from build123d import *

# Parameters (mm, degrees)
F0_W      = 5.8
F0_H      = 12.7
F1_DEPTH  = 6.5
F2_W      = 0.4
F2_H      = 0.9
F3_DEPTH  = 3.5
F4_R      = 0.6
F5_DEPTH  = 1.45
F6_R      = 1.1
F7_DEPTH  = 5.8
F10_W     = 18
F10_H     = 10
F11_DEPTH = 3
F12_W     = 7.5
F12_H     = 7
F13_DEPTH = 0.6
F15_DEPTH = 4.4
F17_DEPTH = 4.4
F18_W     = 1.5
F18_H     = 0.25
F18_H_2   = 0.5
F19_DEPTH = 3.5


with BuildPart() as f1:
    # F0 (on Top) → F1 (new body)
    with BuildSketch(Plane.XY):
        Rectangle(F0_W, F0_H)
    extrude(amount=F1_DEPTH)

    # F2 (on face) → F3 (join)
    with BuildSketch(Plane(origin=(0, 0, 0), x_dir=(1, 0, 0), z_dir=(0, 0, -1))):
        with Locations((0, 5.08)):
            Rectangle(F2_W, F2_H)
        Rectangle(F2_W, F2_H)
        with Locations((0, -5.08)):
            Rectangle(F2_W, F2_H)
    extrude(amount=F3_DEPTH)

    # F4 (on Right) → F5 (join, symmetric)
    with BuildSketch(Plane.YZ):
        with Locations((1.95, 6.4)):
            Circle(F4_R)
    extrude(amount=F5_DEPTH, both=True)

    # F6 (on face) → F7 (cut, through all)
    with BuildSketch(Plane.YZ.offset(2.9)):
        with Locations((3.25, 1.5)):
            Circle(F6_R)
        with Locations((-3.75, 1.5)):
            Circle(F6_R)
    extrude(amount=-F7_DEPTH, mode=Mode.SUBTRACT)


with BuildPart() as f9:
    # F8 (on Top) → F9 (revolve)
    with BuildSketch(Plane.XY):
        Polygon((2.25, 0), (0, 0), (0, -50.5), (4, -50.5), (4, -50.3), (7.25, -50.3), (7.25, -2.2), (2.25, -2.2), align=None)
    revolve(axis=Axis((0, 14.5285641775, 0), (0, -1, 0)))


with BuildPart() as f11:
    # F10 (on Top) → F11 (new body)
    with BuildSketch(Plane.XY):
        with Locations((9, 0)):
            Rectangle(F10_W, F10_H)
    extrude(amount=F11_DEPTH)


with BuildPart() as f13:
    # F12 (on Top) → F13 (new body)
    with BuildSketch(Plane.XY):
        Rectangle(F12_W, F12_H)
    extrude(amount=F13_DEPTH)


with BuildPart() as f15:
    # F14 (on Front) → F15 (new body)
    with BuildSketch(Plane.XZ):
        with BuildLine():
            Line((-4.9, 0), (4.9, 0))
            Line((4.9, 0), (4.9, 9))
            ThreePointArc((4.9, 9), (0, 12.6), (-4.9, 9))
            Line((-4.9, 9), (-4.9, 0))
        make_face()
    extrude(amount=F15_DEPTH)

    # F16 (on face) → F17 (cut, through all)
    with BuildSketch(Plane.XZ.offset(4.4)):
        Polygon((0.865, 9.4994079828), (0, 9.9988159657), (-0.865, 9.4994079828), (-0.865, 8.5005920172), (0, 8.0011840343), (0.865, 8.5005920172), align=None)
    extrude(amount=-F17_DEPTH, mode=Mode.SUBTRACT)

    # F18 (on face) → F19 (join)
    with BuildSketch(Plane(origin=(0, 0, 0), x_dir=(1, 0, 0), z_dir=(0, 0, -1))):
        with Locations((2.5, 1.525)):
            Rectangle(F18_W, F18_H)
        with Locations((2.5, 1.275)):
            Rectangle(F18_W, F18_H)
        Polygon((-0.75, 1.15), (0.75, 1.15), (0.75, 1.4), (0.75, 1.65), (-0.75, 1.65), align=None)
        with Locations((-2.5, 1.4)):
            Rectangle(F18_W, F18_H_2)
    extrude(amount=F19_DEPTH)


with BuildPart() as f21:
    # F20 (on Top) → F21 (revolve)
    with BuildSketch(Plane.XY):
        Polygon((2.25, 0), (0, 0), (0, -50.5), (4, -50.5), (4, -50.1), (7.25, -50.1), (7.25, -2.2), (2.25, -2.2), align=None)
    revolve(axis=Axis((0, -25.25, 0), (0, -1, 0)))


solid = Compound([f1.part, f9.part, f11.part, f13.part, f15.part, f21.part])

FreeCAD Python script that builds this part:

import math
import FreeCAD as App
import Part
import Sketcher
Q = App.Units.Quantity

doc = App.newDocument("Part")
body = doc.addObject("PartDesign::Body", "Body")

sketch1 = doc.addObject("Sketcher::SketchObject", "Sketch")
body.addObject(sketch1)
sketch1.AttachmentSupport = (doc.XY_Plane, [""])
sketch1.MapMode = "FlatFace"
sketch1.addGeometry([
    Part.LineSegment(App.Vector(-2.9, 6.35, 0), App.Vector(-2.9, -6.35, 0)),
    Part.LineSegment(App.Vector(-2.9, -6.35, 0), App.Vector(2.9, -6.35, 0)),
    Part.LineSegment(App.Vector(2.9, -6.35, 0), App.Vector(2.9, 6.35, 0)),
    Part.LineSegment(App.Vector(2.9, 6.35, 0), App.Vector(-2.9, 6.35, 0)),
], False)
sketch1.addConstraint([
    Sketcher.Constraint("Coincident", 0, 2, 1, 1),
    Sketcher.Constraint("Coincident", 1, 2, 2, 1),
    Sketcher.Constraint("Coincident", 2, 2, 3, 1),
    Sketcher.Constraint("Coincident", 3, 2, 0, 1),
    Sketcher.Constraint("Vertical", 0),
    Sketcher.Constraint("Horizontal", 1),
    Sketcher.Constraint("Vertical", 2),
    Sketcher.Constraint("Horizontal", 3),
    Sketcher.Constraint("Symmetric", 0, 2, 2, 2, -1, 1),
    Sketcher.Constraint("DistanceX", 1, 1, 1, 2, Q("5.8 mm")),
    Sketcher.Constraint("DistanceY", 0, 2, 0, 1, Q("12.7 mm")),
])
pad1 = doc.addObject("PartDesign::Pad", "Pad")
body.addObject(pad1)
pad1.Profile = sketch1
pad1.Length = 6.5

sketch2 = doc.addObject("Sketcher::SketchObject", "Sketch001")
body.addObject(sketch2)
sketch2.AttachmentSupport = (doc.XY_Plane, [""])
sketch2.MapMode = "FlatFace"
sketch2.addGeometry([
    Part.LineSegment(App.Vector(-0.2, -5.53, 0), App.Vector(-0.2, -4.63, 0)),
    Part.LineSegment(App.Vector(-0.2, -4.63, 0), App.Vector(0.2, -4.63, 0)),
    Part.LineSegment(App.Vector(0.2, -4.63, 0), App.Vector(0.2, -5.53, 0)),
    Part.LineSegment(App.Vector(0.2, -5.53, 0), App.Vector(-0.2, -5.53, 0)),
    Part.LineSegment(App.Vector(-0.2, -0.45, 0), App.Vector(-0.2, 0.45, 0)),
    Part.LineSegment(App.Vector(-0.2, 0.45, 0), App.Vector(0.2, 0.45, 0)),
    Part.LineSegment(App.Vector(0.2, 0.45, 0), App.Vector(0.2, -0.45, 0)),
    Part.LineSegment(App.Vector(0.2, -0.45, 0), App.Vector(-0.2, -0.45, 0)),
    Part.LineSegment(App.Vector(-0.2, 4.63, 0), App.Vector(-0.2, 5.53, 0)),
    Part.LineSegment(App.Vector(-0.2, 5.53, 0), App.Vector(0.2, 5.53, 0)),
    Part.LineSegment(App.Vector(0.2, 5.53, 0), App.Vector(0.2, 4.63, 0)),
    Part.LineSegment(App.Vector(0.2, 4.63, 0), App.Vector(-0.2, 4.63, 0)),
], False)
sketch2.addConstraint([
    Sketcher.Constraint("Coincident", 0, 2, 1, 1),
    Sketcher.Constraint("Coincident", 1, 2, 2, 1),
    Sketcher.Constraint("Coincident", 2, 2, 3, 1),
    Sketcher.Constraint("Coincident", 3, 2, 0, 1),
    Sketcher.Constraint("Coincident", 4, 2, 5, 1),
    Sketcher.Constraint("Coincident", 5, 2, 6, 1),
    Sketcher.Constraint("Coincident", 6, 2, 7, 1),
    Sketcher.Constraint("Coincident", 7, 2, 4, 1),
    Sketcher.Constraint("Coincident", 8, 2, 9, 1),
    Sketcher.Constraint("Coincident", 9, 2, 10, 1),
    Sketcher.Constraint("Coincident", 10, 2, 11, 1),
    Sketcher.Constraint("Coincident", 11, 2, 8, 1),
    Sketcher.Constraint("Vertical", 0),
    Sketcher.Constraint("Horizontal", 1),
    Sketcher.Constraint("Vertical", 2),
    Sketcher.Constraint("Horizontal", 3),
    Sketcher.Constraint("Vertical", 4),
    Sketcher.Constraint("Horizontal", 5),
    Sketcher.Constraint("Vertical", 6),
    Sketcher.Constraint("Horizontal", 7),
    Sketcher.Constraint("Vertical", 8),
    Sketcher.Constraint("Horizontal", 9),
    Sketcher.Constraint("Vertical", 10),
    Sketcher.Constraint("Horizontal", 11),
    Sketcher.Constraint("Symmetric", 4, 2, 6, 2, -1, 1),
    Sketcher.Constraint("Symmetric", 2, 2, 8, 2, -1, 1),
    Sketcher.Constraint("Symmetric", 0, 2, 10, 2, -1, 1),
    Sketcher.Constraint("Vertical", 3, 2, 4, 2),
    Sketcher.Constraint("Vertical", 2, 2, 5, 2),
    Sketcher.Constraint("Equal", 2, 4),
    Sketcher.Constraint("DistanceX", 1, 1, 1, 2, Q("0.4 mm")),
    Sketcher.Constraint("DistanceY", 0, 1, 0, 2, Q("0.9 mm")),
    Sketcher.Constraint("DistanceY", 0, 2, -1, 1, Q("4.63 mm")),
])
pad2 = doc.addObject("PartDesign::Pad", "Pad001")
body.addObject(pad2)
pad2.Profile = sketch2
pad2.Length = 3.5
pad2.Reversed = True

sketch3 = doc.addObject("Sketcher::SketchObject", "Sketch002")
body.addObject(sketch3)
sketch3.AttachmentSupport = (doc.YZ_Plane, [""])
sketch3.MapMode = "FlatFace"
sketch3.addGeometry(Part.Circle(App.Vector(1.95, 6.4, 0), App.Vector(0, 0, 1), 0.6), False)
sketch3.addConstraint([
    Sketcher.Constraint("Diameter", 0, Q("1.2 mm")),
    Sketcher.Constraint("DistanceY", -1, 1, 0, 3, Q("6.4 mm")),
    Sketcher.Constraint("DistanceX", -1, 1, 0, 3, Q("1.95 mm")),
])
pad3 = doc.addObject("PartDesign::Pad", "Pad002")
body.addObject(pad3)
pad3.Profile = sketch3
pad3.Length = 2.9
pad3.Midplane = True

sketch4 = doc.addObject("Sketcher::SketchObject", "Sketch003")
body.addObject(sketch4)
sketch4.AttachmentSupport = (doc.YZ_Plane, [""])
sketch4.MapMode = "FlatFace"
sketch4.AttachmentOffset = App.Placement(App.Vector(0, 0, 2.9), App.Rotation())
sketch4.addGeometry([
    Part.Circle(App.Vector(3.25, 1.5, 0), App.Vector(0, 0, 1), 1.1),
    Part.Circle(App.Vector(-3.75, 1.5, 0), App.Vector(0, 0, 1), 1.1),
], False)
sketch4.addConstraint([
    Sketcher.Constraint("Equal", 0, 1),
    Sketcher.Constraint("Horizontal", 0, 3, 1, 3),
    Sketcher.Constraint("Diameter", 0, Q("2.2 mm")),
    Sketcher.Constraint("DistanceX", 1, 3, 0, 3, Q("7 mm")),
    Sketcher.Constraint("DistanceY", -1, 1, 0, 3, Q("1.5 mm")),
    Sketcher.Constraint("DistanceX", -1, 1, 0, 3, Q("3.25 mm")),
])
pocket1 = doc.addObject("PartDesign::Pocket", "Pocket")
body.addObject(pocket1)
pocket1.Profile = sketch4
pocket1.Type = "ThroughAll"
body2 = doc.addObject("PartDesign::Body", "Body001")

sketch5 = doc.addObject("Sketcher::SketchObject", "Sketch004")
body2.addObject(sketch5)
sketch5.AttachmentSupport = (doc.getObject("XY_Plane001"), [""])
sketch5.MapMode = "FlatFace"
sketch5.addGeometry([
    Part.LineSegment(App.Vector(2.25, 0, 0), App.Vector(0, 0, 0)),
    Part.LineSegment(App.Vector(0, 0, 0), App.Vector(0, -50.5, 0)),
    Part.LineSegment(App.Vector(0, -50.5, 0), App.Vector(4, -50.5, 0)),
    Part.LineSegment(App.Vector(4, -50.5, 0), App.Vector(4, -50.3, 0)),
    Part.LineSegment(App.Vector(4, -50.3, 0), App.Vector(7.25, -50.3, 0)),
    Part.LineSegment(App.Vector(7.25, -50.3, 0), App.Vector(7.25, -2.2, 0)),
    Part.LineSegment(App.Vector(7.25, -2.2, 0), App.Vector(2.25, -2.2, 0)),
    Part.LineSegment(App.Vector(2.25, -2.2, 0), App.Vector(2.25, 0, 0)),
], False)
sketch5.addConstraint([
    Sketcher.Constraint("Coincident", 0, 2, 1, 1),
    Sketcher.Constraint("Coincident", 1, 2, 2, 1),
    Sketcher.Constraint("Coincident", 2, 2, 3, 1),
    Sketcher.Constraint("Coincident", 3, 2, 4, 1),
    Sketcher.Constraint("Coincident", 4, 2, 5, 1),
    Sketcher.Constraint("Coincident", 5, 2, 6, 1),
    Sketcher.Constraint("Coincident", 6, 2, 7, 1),
    Sketcher.Constraint("Coincident", 7, 2, 0, 1),
    Sketcher.Constraint("Horizontal", 0),
    Sketcher.Constraint("Vertical", 1),
    Sketcher.Constraint("Horizontal", 2),
    Sketcher.Constraint("Vertical", 3),
    Sketcher.Constraint("Horizontal", 4),
    Sketcher.Constraint("Vertical", 5),
    Sketcher.Constraint("Horizontal", 6),
    Sketcher.Constraint("Vertical", 7),
    Sketcher.Constraint("Coincident", 0, 2, -1, 1),
    Sketcher.Constraint("DistanceX", 2, 1, 2, 2, Q("4 mm")),
    Sketcher.Constraint("DistanceX", 6, 2, 6, 1, Q("5 mm")),
    Sketcher.Constraint("DistanceY", 1, 2, 1, 1, Q("50.5 mm")),
    Sketcher.Constraint("DistanceY", 3, 1, 3, 2, Q("0.2 mm")),
    Sketcher.Constraint("DistanceY", 5, 1, 5, 2, Q("48.1 mm")),
    Sketcher.Constraint("DistanceX", 0, 2, 0, 1, Q("2.25 mm")),
])
revolution = doc.addObject("PartDesign::Revolution", "Revolution")
body2.addObject(revolution)
revolution.Profile = sketch5
revolution.ReferenceAxis = (sketch5, ["V_Axis"])
revolution.Angle = 360
body3 = doc.addObject("PartDesign::Body", "Body002")

sketch6 = doc.addObject("Sketcher::SketchObject", "Sketch005")
body3.addObject(sketch6)
sketch6.AttachmentSupport = (doc.getObject("XY_Plane002"), [""])
sketch6.MapMode = "FlatFace"
sketch6.addGeometry([
    Part.LineSegment(App.Vector(0, 5, 0), App.Vector(0, -5, 0)),
    Part.LineSegment(App.Vector(0, -5, 0), App.Vector(18, -5, 0)),
    Part.LineSegment(App.Vector(18, -5, 0), App.Vector(18, 5, 0)),
    Part.LineSegment(App.Vector(18, 5, 0), App.Vector(0, 5, 0)),
], False)
sketch6.addConstraint([
    Sketcher.Constraint("Coincident", 0, 2, 1, 1),
    Sketcher.Constraint("Coincident", 1, 2, 2, 1),
    Sketcher.Constraint("Coincident", 2, 2, 3, 1),
    Sketcher.Constraint("Coincident", 3, 2, 0, 1),
    Sketcher.Constraint("Vertical", 0),
    Sketcher.Constraint("Horizontal", 1),
    Sketcher.Constraint("Vertical", 2),
    Sketcher.Constraint("Horizontal", 3),
    Sketcher.Constraint("Symmetric", 0, 2, 3, 2, -1, 1),
    Sketcher.Constraint("DistanceX", 1, 1, 1, 2, Q("18 mm")),
    Sketcher.Constraint("DistanceY", 0, 2, 0, 1, Q("10 mm")),
])
pad4 = doc.addObject("PartDesign::Pad", "Pad003")
body3.addObject(pad4)
pad4.Profile = sketch6
pad4.Length = 3
body4 = doc.addObject("PartDesign::Body", "Body003")

sketch7 = doc.addObject("Sketcher::SketchObject", "Sketch006")
body4.addObject(sketch7)
sketch7.AttachmentSupport = (doc.getObject("XY_Plane003"), [""])
sketch7.MapMode = "FlatFace"
sketch7.addGeometry([
    Part.LineSegment(App.Vector(-3.75, 3.5, 0), App.Vector(-3.75, -3.5, 0)),
    Part.LineSegment(App.Vector(-3.75, -3.5, 0), App.Vector(3.75, -3.5, 0)),
    Part.LineSegment(App.Vector(3.75, -3.5, 0), App.Vector(3.75, 3.5, 0)),
    Part.LineSegment(App.Vector(3.75, 3.5, 0), App.Vector(-3.75, 3.5, 0)),
], False)
sketch7.addConstraint([
    Sketcher.Constraint("Coincident", 0, 2, 1, 1),
    Sketcher.Constraint("Coincident", 1, 2, 2, 1),
    Sketcher.Constraint("Coincident", 2, 2, 3, 1),
    Sketcher.Constraint("Coincident", 3, 2, 0, 1),
    Sketcher.Constraint("Vertical", 0),
    Sketcher.Constraint("Horizontal", 1),
    Sketcher.Constraint("Vertical", 2),
    Sketcher.Constraint("Horizontal", 3),
    Sketcher.Constraint("Symmetric", 0, 2, 2, 2, -1, 1),
    Sketcher.Constraint("DistanceY", 0, 2, 0, 1, Q("7 mm")),
    Sketcher.Constraint("DistanceX", 1, 1, 1, 2, Q("7.5 mm")),
])
pad5 = doc.addObject("PartDesign::Pad", "Pad004")
body4.addObject(pad5)
pad5.Profile = sketch7
pad5.Length = 0.6
body5 = doc.addObject("PartDesign::Body", "Body004")

sketch8 = doc.addObject("Sketcher::SketchObject", "Sketch007")
body5.addObject(sketch8)
sketch8.AttachmentSupport = (doc.getObject("XZ_Plane004"), [""])
sketch8.MapMode = "FlatFace"
sketch8.addGeometry([
    Part.LineSegment(App.Vector(-4.9, 0, 0), App.Vector(4.9, 0, 0)),
    Part.LineSegment(App.Vector(4.9, 0, 0), App.Vector(4.9, 9, 0)),
    Part.ArcOfCircle(Part.Circle(App.Vector(0, 7.465278, 0), App.Vector(0, 0, 1), 5.134722), math.radians(17.391006), math.radians(162.608994)),
    Part.LineSegment(App.Vector(-4.9, 9, 0), App.Vector(-4.9, 0, 0)),
], False)
sketch8.addConstraint([
    Sketcher.Constraint("Coincident", 0, 2, 1, 1),
    Sketcher.Constraint("Coincident", 1, 2, 2, 1),
    Sketcher.Constraint("Coincident", 2, 2, 3, 1),
    Sketcher.Constraint("Coincident", 3, 2, 0, 1),
    Sketcher.Constraint("Horizontal", 0),
    Sketcher.Constraint("Vertical", 1),
    Sketcher.Constraint("Vertical", 3),
    Sketcher.Constraint("Symmetric", 0, 2, 3, 2, -1, 1),
    Sketcher.Constraint("PointOnObject", 2, 3, -2),
    Sketcher.Constraint("DistanceY", 1, 1, 1, 2, Q("9 mm")),
    Sketcher.Constraint("DistanceX", 0, 1, 0, 2, Q("9.8 mm")),
    Sketcher.Constraint("Radius", 2, Q("5.134722 mm")),
])
pad6 = doc.addObject("PartDesign::Pad", "Pad005")
body5.addObject(pad6)
pad6.Profile = sketch8
pad6.Length = 4.4

sketch9 = doc.addObject("Sketcher::SketchObject", "Sketch008")
body5.addObject(sketch9)
sketch9.AttachmentSupport = (doc.getObject("XZ_Plane004"), [""])
sketch9.MapMode = "FlatFace"
sketch9.AttachmentOffset = App.Placement(App.Vector(0, 0, 4.4), App.Rotation())
sketch9.addGeometry([
    Part.LineSegment(App.Vector(0.865, 9.499408, 0), App.Vector(0, 9.998816, 0)),
    Part.LineSegment(App.Vector(0, 9.998816, 0), App.Vector(-0.865, 9.499408, 0)),
    Part.LineSegment(App.Vector(-0.865, 9.499408, 0), App.Vector(-0.865, 8.500592, 0)),
    Part.LineSegment(App.Vector(-0.865, 8.500592, 0), App.Vector(0, 8.001184, 0)),
    Part.LineSegment(App.Vector(0, 8.001184, 0), App.Vector(0.865, 8.500592, 0)),
    Part.LineSegment(App.Vector(0.865, 8.500592, 0), App.Vector(0.865, 9.499408, 0)),
], False)
sketch9.addConstraint([
    Sketcher.Constraint("Coincident", 0, 2, 1, 1),
    Sketcher.Constraint("Coincident", 1, 2, 2, 1),
    Sketcher.Constraint("Coincident", 2, 2, 3, 1),
    Sketcher.Constraint("Coincident", 3, 2, 4, 1),
    Sketcher.Constraint("Coincident", 4, 2, 5, 1),
    Sketcher.Constraint("Coincident", 5, 2, 0, 1),
    Sketcher.Constraint("Vertical", 2),
    Sketcher.Constraint("Vertical", 5),
    Sketcher.Constraint("Symmetric", 2, 2, 4, 2, -2),
    Sketcher.Constraint("PointOnObject", 0, 2, -2),
    Sketcher.Constraint("PointOnObject", 3, 2, -2),
    Sketcher.Constraint("Parallel", 0, 3),
    Sketcher.Constraint("Parallel", 1, 4),
    Sketcher.Constraint("Angle", 0, Q("150 deg")),
    Sketcher.Constraint("DistanceX", 2, 2, 4, 2, Q("1.73 mm")),
    Sketcher.Constraint("DistanceY", 2, 2, 2, 1, Q("0.998816 mm")),
    Sketcher.Constraint("DistanceY", -1, 1, 0, 2, Q("9.998816 mm")),
])
pocket2 = doc.addObject("PartDesign::Pocket", "Pocket001")
body5.addObject(pocket2)
pocket2.Profile = sketch9
pocket2.Type = "ThroughAll"

sketch10 = doc.addObject("Sketcher::SketchObject", "Sketch009")
body5.addObject(sketch10)
sketch10.AttachmentSupport = (doc.getObject("XY_Plane004"), [""])
sketch10.MapMode = "FlatFace"
sketch10.addGeometry([
    Part.LineSegment(App.Vector(1.75, -1.65, 0), App.Vector(1.75, -1.15, 0)),
    Part.LineSegment(App.Vector(1.75, -1.15, 0), App.Vector(3.25, -1.15, 0)),
    Part.LineSegment(App.Vector(3.25, -1.15, 0), App.Vector(3.25, -1.65, 0)),
    Part.LineSegment(App.Vector(3.25, -1.65, 0), App.Vector(1.75, -1.65, 0)),
    Part.LineSegment(App.Vector(-0.75, -1.15, 0), App.Vector(0.75, -1.15, 0)),
    Part.LineSegment(App.Vector(0.75, -1.15, 0), App.Vector(0.75, -1.65, 0)),
    Part.LineSegment(App.Vector(0.75, -1.65, 0), App.Vector(-0.75, -1.65, 0)),
    Part.LineSegment(App.Vector(-0.75, -1.65, 0), App.Vector(-0.75, -1.15, 0)),
    Part.LineSegment(App.Vector(-3.25, -1.65, 0), App.Vector(-3.25, -1.15, 0)),
    Part.LineSegment(App.Vector(-3.25, -1.15, 0), App.Vector(-1.75, -1.15, 0)),
    Part.LineSegment(App.Vector(-1.75, -1.15, 0), App.Vector(-1.75, -1.65, 0)),
    Part.LineSegment(App.Vector(-1.75, -1.65, 0), App.Vector(-3.25, -1.65, 0)),
], False)
sketch10.addConstraint([
    Sketcher.Constraint("Coincident", 0, 2, 1, 1),
    Sketcher.Constraint("Coincident", 1, 2, 2, 1),
    Sketcher.Constraint("Coincident", 2, 2, 3, 1),
    Sketcher.Constraint("Coincident", 3, 2, 0, 1),
    Sketcher.Constraint("Coincident", 4, 2, 5, 1),
    Sketcher.Constraint("Coincident", 5, 2, 6, 1),
    Sketcher.Constraint("Coincident", 6, 2, 7, 1),
    Sketcher.Constraint("Coincident", 7, 2, 4, 1),
    Sketcher.Constraint("Coincident", 8, 2, 9, 1),
    Sketcher.Constraint("Coincident", 9, 2, 10, 1),
    Sketcher.Constraint("Coincident", 10, 2, 11, 1),
    Sketcher.Constraint("Coincident", 11, 2, 8, 1),
    Sketcher.Constraint("Vertical", 0),
    Sketcher.Constraint("Horizontal", 1),
    Sketcher.Constraint("Vertical", 2),
    Sketcher.Constraint("Horizontal", 3),
    Sketcher.Constraint("Horizontal", 4),
    Sketcher.Constraint("Vertical", 5),
    Sketcher.Constraint("Horizontal", 6),
    Sketcher.Constraint("Vertical", 7),
    Sketcher.Constraint("Vertical", 8),
    Sketcher.Constraint("Horizontal", 9),
    Sketcher.Constraint("Vertical", 10),
    Sketcher.Constraint("Horizontal", 11),
    Sketcher.Constraint("Symmetric", 1, 2, 8, 2, -2),
    Sketcher.Constraint("Symmetric", 3, 2, 10, 2, -2),
    Sketcher.Constraint("Horizontal", 1, 2, 4, 2),
    Sketcher.Constraint("Horizontal", 3, 2, 5, 2),
    Sketcher.Constraint("Equal", 3, 4),
    Sketcher.Constraint("DistanceX", 1, 1, 1, 2, Q("1.5 mm")),
    Sketcher.Constraint("DistanceY", 0, 1, 0, 2, Q("0.5 mm")),
    Sketcher.Constraint("DistanceX", 4, 2, 0, 2, Q("1 mm")),
    Sketcher.Constraint("DistanceX", 8, 2, 4, 2, Q("4 mm")),
    Sketcher.Constraint("DistanceY", 0, 2, -1, 1, Q("1.15 mm")),
])
pad7 = doc.addObject("PartDesign::Pad", "Pad006")
body5.addObject(pad7)
pad7.Profile = sketch10
pad7.Length = 3.5
pad7.Reversed = True
body6 = doc.addObject("PartDesign::Body", "Body005")

sketch11 = doc.addObject("Sketcher::SketchObject", "Sketch010")
body6.addObject(sketch11)
sketch11.AttachmentSupport = (doc.getObject("XY_Plane005"), [""])
sketch11.MapMode = "FlatFace"
sketch11.addGeometry([
    Part.LineSegment(App.Vector(2.25, 0, 0), App.Vector(0, 0, 0)),
    Part.LineSegment(App.Vector(0, 0, 0), App.Vector(0, -50.5, 0)),
    Part.LineSegment(App.Vector(0, -50.5, 0), App.Vector(4, -50.5, 0)),
    Part.LineSegment(App.Vector(4, -50.5, 0), App.Vector(4, -50.1, 0)),
    Part.LineSegment(App.Vector(4, -50.1, 0), App.Vector(7.25, -50.1, 0)),
    Part.LineSegment(App.Vector(7.25, -50.1, 0), App.Vector(7.25, -2.2, 0)),
    Part.LineSegment(App.Vector(7.25, -2.2, 0), App.Vector(2.25, -2.2, 0)),
    Part.LineSegment(App.Vector(2.25, -2.2, 0), App.Vector(2.25, 0, 0)),
], False)
sketch11.addConstraint([
    Sketcher.Constraint("Coincident", 0, 2, 1, 1),
    Sketcher.Constraint("Coincident", 1, 2, 2, 1),
    Sketcher.Constraint("Coincident", 2, 2, 3, 1),
    Sketcher.Constraint("Coincident", 3, 2, 4, 1),
    Sketcher.Constraint("Coincident", 4, 2, 5, 1),
    Sketcher.Constraint("Coincident", 5, 2, 6, 1),
    Sketcher.Constraint("Coincident", 6, 2, 7, 1),
    Sketcher.Constraint("Coincident", 7, 2, 0, 1),
    Sketcher.Constraint("Horizontal", 0),
    Sketcher.Constraint("Vertical", 1),
    Sketcher.Constraint("Horizontal", 2),
    Sketcher.Constraint("Vertical", 3),
    Sketcher.Constraint("Horizontal", 4),
    Sketcher.Constraint("Vertical", 5),
    Sketcher.Constraint("Horizontal", 6),
    Sketcher.Constraint("Vertical", 7),
    Sketcher.Constraint("Coincident", 0, 2, -1, 1),
    Sketcher.Constraint("DistanceX", 2, 1, 2, 2, Q("4 mm")),
    Sketcher.Constraint("DistanceX", 6, 2, 6, 1, Q("5 mm")),
    Sketcher.Constraint("DistanceY", 1, 2, 1, 1, Q("50.5 mm")),
    Sketcher.Constraint("DistanceY", 3, 1, 3, 2, Q("0.4 mm")),
    Sketcher.Constraint("DistanceY", 5, 1, 5, 2, Q("47.9 mm")),
    Sketcher.Constraint("DistanceX", 0, 2, 0, 1, Q("2.25 mm")),
])
revolution2 = doc.addObject("PartDesign::Revolution", "Revolution001")
body6.addObject(revolution2)
revolution2.Profile = sketch11
revolution2.ReferenceAxis = (sketch11, ["V_Axis"])
revolution2.Angle = 360

doc.recompute()
